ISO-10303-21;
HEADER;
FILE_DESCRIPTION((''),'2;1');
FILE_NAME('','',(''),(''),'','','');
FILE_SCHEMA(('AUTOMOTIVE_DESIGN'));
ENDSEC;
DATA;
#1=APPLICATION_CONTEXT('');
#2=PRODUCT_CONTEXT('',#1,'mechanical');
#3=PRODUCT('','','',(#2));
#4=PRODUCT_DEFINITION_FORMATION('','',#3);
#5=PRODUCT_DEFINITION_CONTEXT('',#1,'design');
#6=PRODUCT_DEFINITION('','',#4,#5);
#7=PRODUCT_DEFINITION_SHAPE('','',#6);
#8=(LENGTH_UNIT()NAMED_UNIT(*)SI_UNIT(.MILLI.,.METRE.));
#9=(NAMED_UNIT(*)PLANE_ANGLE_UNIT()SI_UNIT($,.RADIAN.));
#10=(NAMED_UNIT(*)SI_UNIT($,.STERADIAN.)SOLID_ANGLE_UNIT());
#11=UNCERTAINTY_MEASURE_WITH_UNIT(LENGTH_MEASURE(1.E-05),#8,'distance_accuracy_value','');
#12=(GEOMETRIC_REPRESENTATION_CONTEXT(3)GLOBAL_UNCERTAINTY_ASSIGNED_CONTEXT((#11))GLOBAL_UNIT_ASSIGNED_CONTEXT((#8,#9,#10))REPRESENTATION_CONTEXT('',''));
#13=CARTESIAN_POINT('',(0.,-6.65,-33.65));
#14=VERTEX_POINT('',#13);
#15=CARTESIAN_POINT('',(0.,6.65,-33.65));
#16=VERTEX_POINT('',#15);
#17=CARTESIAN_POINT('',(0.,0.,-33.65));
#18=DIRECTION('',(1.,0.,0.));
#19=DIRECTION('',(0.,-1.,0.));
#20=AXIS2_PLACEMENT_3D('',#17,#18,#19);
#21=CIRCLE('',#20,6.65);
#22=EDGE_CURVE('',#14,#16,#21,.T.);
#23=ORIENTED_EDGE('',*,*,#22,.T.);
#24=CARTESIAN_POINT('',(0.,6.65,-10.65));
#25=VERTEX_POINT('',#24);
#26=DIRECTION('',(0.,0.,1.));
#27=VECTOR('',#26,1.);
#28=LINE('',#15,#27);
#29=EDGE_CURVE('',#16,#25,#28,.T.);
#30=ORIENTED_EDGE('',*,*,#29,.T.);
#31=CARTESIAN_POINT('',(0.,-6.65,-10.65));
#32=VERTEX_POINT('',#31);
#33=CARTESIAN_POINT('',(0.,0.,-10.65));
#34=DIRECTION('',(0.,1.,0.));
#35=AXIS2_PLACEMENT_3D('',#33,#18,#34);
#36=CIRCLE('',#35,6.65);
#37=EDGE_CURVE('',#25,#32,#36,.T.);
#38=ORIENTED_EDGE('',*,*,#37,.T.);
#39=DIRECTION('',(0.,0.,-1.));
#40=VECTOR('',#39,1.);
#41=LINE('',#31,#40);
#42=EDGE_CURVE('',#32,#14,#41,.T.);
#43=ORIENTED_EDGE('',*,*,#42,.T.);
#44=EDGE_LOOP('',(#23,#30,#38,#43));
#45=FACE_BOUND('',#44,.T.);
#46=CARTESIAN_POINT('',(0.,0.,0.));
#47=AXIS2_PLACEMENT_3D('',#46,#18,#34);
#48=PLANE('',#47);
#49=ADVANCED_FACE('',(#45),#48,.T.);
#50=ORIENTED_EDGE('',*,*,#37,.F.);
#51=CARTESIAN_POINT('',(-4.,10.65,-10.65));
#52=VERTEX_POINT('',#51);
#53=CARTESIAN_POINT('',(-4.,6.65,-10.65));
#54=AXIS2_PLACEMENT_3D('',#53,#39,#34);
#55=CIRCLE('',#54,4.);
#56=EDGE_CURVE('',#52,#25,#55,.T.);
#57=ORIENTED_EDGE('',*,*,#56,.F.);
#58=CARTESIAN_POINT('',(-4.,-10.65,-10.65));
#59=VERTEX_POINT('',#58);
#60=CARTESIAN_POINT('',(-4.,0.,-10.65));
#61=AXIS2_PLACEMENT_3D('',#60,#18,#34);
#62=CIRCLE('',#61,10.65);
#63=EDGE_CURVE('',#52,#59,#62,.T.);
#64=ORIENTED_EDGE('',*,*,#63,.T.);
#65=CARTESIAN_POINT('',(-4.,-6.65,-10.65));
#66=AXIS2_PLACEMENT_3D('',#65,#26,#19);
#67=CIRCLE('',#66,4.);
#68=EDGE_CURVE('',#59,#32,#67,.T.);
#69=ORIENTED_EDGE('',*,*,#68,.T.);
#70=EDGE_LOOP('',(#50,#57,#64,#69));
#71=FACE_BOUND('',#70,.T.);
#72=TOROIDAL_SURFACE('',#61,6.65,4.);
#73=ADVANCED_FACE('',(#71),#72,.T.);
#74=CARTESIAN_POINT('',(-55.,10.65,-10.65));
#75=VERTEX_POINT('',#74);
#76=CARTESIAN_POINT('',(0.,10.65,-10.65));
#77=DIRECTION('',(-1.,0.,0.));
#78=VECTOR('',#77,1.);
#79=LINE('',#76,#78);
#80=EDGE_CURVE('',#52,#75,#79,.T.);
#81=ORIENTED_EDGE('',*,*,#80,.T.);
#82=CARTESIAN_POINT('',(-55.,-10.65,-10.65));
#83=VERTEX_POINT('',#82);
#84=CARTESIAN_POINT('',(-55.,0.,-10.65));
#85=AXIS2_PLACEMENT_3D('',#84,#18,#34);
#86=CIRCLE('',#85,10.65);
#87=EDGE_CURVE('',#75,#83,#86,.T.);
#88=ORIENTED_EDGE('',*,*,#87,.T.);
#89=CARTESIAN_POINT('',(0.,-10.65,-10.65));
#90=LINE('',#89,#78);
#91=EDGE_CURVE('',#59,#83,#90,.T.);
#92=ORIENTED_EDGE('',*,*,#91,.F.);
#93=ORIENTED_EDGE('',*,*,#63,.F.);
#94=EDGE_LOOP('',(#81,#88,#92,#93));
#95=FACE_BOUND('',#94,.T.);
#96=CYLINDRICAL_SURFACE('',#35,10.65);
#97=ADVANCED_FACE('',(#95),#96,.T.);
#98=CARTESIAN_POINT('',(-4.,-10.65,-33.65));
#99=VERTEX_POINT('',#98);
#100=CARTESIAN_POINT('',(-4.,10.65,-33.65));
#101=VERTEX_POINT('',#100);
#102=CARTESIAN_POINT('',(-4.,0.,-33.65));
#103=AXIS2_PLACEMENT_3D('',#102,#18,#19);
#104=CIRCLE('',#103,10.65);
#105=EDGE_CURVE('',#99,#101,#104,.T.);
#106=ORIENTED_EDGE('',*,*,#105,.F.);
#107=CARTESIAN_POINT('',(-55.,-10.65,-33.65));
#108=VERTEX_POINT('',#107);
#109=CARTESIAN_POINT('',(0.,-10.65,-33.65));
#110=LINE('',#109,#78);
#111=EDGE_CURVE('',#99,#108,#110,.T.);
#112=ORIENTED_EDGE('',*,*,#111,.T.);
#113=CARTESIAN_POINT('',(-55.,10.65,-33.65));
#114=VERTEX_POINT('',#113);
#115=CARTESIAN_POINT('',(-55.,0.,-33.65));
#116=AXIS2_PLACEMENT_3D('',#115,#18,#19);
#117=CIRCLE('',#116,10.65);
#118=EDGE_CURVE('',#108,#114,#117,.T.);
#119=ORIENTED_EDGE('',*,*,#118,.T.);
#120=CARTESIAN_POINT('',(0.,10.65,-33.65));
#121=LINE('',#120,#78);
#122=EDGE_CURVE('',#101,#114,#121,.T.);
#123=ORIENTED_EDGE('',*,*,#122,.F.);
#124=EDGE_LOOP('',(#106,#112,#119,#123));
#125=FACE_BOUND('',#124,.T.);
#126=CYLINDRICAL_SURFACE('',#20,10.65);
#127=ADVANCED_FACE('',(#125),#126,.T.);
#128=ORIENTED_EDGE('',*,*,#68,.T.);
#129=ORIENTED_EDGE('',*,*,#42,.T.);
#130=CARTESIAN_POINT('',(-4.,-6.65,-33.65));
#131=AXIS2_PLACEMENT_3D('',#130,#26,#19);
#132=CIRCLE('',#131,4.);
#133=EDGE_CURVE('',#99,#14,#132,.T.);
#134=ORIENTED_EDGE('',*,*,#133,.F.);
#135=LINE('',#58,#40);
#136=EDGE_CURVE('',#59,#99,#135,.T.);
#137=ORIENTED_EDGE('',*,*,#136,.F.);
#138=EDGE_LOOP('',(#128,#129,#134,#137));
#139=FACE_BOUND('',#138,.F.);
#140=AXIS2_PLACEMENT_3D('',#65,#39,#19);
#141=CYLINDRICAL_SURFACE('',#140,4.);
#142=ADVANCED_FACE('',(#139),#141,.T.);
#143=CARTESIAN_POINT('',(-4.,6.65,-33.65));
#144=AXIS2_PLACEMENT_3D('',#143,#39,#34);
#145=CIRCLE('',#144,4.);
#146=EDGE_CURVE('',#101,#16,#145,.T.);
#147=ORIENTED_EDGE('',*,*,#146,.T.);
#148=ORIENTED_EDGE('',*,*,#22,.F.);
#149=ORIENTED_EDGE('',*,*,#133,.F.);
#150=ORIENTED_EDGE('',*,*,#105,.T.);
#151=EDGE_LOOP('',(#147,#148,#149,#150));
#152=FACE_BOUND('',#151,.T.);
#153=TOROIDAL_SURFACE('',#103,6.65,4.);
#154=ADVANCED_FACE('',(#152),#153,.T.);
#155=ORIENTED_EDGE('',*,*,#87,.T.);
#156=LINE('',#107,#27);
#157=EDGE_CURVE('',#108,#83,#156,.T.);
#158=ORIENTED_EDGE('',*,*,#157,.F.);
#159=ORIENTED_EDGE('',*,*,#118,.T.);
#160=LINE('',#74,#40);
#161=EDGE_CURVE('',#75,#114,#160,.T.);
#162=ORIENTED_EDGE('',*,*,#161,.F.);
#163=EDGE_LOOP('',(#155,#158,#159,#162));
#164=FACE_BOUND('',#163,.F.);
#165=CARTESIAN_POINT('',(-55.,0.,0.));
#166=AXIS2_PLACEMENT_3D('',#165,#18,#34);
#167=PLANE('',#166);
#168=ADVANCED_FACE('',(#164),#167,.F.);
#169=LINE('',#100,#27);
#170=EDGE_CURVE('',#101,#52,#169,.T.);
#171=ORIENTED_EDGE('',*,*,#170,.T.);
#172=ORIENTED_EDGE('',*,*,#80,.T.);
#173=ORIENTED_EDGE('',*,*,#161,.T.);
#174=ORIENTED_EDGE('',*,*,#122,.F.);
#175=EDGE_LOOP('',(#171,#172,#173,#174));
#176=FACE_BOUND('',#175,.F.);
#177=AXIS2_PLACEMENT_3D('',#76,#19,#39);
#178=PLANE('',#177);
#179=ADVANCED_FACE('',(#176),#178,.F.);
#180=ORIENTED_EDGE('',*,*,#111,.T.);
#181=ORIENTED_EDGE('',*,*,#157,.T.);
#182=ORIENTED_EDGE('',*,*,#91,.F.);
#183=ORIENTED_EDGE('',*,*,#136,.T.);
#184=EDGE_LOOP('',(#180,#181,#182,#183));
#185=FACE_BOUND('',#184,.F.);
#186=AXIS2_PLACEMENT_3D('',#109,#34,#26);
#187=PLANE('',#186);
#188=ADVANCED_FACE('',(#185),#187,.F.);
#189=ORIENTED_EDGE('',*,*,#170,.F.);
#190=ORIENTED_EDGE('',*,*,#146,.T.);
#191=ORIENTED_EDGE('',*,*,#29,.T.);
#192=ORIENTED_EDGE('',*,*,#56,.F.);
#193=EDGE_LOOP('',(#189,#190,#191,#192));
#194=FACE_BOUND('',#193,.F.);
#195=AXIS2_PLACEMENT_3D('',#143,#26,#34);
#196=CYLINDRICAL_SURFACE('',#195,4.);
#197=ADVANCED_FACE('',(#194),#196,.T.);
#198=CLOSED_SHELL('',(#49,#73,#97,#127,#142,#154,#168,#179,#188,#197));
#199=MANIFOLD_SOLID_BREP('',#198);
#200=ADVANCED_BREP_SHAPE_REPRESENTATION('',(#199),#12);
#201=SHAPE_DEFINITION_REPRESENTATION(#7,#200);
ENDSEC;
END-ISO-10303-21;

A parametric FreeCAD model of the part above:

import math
import FreeCAD as App
import Part
import Sketcher


def edges_at(feature, points):
    """Names of the edges that pass closest to the given points."""
    edges = feature.Shape.Edges
    near = lambda p: min(range(len(edges)), key=lambda i: edges[i].distToShape(Part.Vertex(*p))[0])
    return sorted({f"Edge{near(p) + 1}" for p in points})

doc = App.newDocument("Part")
body = doc.addObject("PartDesign::Body", "Body")

# Sketch on YZ plane
sketch1 = body.newObject("Sketcher::SketchObject", "Sketch")
sketch1.AttachmentSupport = (doc.getObject("YZ_Plane"), [""])
sketch1.MapMode = "FlatFace"
sketch1.addGeometry(Part.LineSegment(App.Vector(11, -34, 0), App.Vector(11, -11, 0)), False)
sketch1.addGeometry(Part.ArcOfCircle(Part.Circle(App.Vector(0, -11, 0), App.Vector(0, 0, 1), 11), math.radians(0), math.radians(180)), False)
sketch1.addGeometry(Part.LineSegment(App.Vector(-11, -11, 0), App.Vector(-11, -34, 0)), False)
sketch1.addGeometry(Part.ArcOfCircle(Part.Circle(App.Vector(0, -34, 0), App.Vector(0, 0, 1), 11), math.radians(180), math.radians(360)), False)
sketch1.addConstraint(Sketcher.Constraint("Tangent", 0, 2, 1, 1))
sketch1.addConstraint(Sketcher.Constraint("Tangent", 1, 2, 2, 1))
sketch1.addConstraint(Sketcher.Constraint("Tangent", 2, 2, 3, 1))
sketch1.addConstraint(Sketcher.Constraint("Tangent", 3, 2, 0, 1))
sketch1.addConstraint(Sketcher.Constraint("Vertical", 0))
sketch1.addConstraint(Sketcher.Constraint("Vertical", 2))
sketch1.addConstraint(Sketcher.Constraint("PointOnObject", 1, 3, -2))
sketch1.addConstraint(Sketcher.Constraint("Radius", 1, 10.65))
sketch1.addConstraint(Sketcher.Constraint("DistanceY", 0, 1, 0, 2, 23.0))
sketch1.addConstraint(Sketcher.Constraint("DistanceY", 1, 3, -1, 1, 10.65))
pad1 = body.newObject("PartDesign::Pad", "Pad")
pad1.Profile = sketch1
pad1.Length = 55
pad1.Reversed = True
doc.recompute()

fillet = body.newObject("PartDesign::Fillet", "Fillet")
fillet.Base = (pad1, edges_at(pad1, [
    (0, 0, 0),
    (0, -10.65, -22.15),
    (0, 0, -44.3),
    (0, 10.65, -22.15),
]))
fillet.Radius = 4

doc.recompute()
